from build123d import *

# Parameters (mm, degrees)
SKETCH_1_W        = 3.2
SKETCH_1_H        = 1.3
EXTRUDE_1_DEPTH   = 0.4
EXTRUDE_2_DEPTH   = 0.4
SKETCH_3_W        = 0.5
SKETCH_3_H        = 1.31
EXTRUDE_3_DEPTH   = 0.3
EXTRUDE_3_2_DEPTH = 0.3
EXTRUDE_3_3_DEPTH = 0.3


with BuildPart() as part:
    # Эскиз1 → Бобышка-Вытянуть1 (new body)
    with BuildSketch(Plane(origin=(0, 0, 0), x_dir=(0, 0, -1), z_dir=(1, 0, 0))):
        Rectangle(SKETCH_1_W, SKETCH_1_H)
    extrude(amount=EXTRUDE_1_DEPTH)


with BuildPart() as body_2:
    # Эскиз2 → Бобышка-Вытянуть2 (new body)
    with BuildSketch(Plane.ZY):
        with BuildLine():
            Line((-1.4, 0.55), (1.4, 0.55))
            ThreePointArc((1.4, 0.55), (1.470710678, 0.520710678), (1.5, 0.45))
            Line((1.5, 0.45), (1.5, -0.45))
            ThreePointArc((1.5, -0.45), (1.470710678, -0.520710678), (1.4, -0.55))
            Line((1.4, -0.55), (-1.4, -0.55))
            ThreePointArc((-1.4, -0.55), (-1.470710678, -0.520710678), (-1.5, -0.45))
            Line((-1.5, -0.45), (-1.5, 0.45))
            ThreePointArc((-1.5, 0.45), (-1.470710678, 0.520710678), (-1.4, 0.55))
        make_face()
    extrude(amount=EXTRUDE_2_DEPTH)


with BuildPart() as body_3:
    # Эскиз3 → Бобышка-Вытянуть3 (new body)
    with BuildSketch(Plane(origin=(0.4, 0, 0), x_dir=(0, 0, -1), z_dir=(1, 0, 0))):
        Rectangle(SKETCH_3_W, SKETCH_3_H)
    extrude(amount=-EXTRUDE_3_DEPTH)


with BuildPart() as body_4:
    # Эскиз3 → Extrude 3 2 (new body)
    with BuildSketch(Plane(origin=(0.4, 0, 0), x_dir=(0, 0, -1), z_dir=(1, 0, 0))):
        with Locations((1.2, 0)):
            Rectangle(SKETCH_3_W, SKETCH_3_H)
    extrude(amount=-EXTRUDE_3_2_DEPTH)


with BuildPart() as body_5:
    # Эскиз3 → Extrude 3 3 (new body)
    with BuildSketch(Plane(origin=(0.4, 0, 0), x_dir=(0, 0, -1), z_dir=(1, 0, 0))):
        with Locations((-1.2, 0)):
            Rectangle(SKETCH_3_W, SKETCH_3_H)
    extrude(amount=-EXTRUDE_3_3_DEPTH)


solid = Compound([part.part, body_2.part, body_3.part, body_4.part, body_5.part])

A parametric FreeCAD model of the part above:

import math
import FreeCAD as App
import Part
import Sketcher

V = App.Vector
Q = App.Units.Quantity


def add_polygon(sketch, points):
    """Adds a closed chain of lines whose ends are joined by coincident constraints."""
    first, n = sketch.GeometryCount, len(points)
    for a, b in zip(points, points[1:] + points[:1]):
        sketch.addGeometry(Part.LineSegment(App.Vector(*a, 0), App.Vector(*b, 0)), False)
    for i in range(n):
        sketch.addConstraint(Sketcher.Constraint("Coincident", first + i, 2, first + (i + 1) % n, 1))

doc = App.newDocument("Part")
body = doc.addObject("PartDesign::Body", "Body")

# Sketch on YZ plane
sketch1 = doc.addObject("Sketcher::SketchObject", "Sketch")
body.addObject(sketch1)
sketch1.AttachmentSupport = (doc.YZ_Plane, [""])
sketch1.MapMode = "FlatFace"
add_polygon(sketch1, [(0.7, 1.6), (-0.7, 1.6), (-0.7, -1.6), (0.7, -1.6)])  # lines 0-3
sketch1.addConstraint(Sketcher.Constraint("Horizontal", 0))
sketch1.addConstraint(Sketcher.Constraint("Vertical", 1))
sketch1.addConstraint(Sketcher.Constraint("Horizontal", 2))
sketch1.addConstraint(Sketcher.Constraint("Vertical", 3))
sketch1.addConstraint(Sketcher.Constraint("Symmetric", 0, 2, 2, 2, -1, 1))
sketch1.addConstraint(Sketcher.Constraint("DistanceX", 0, 2, 0, 1, Q("1.3 mm")))
sketch1.addConstraint(Sketcher.Constraint("DistanceY", 1, 2, 1, 1, Q("3.2 mm")))
pad1 = doc.addObject("PartDesign::Pad", "Pad")
body.addObject(pad1)
pad1.Profile = sketch1
pad1.Length = 0.4
body2 = doc.addObject("PartDesign::Body", "Body001")

# Sketch on YZ plane
sketch2 = doc.addObject("Sketcher::SketchObject", "Sketch001")
body2.addObject(sketch2)
sketch2.AttachmentSupport = (doc.getObject("YZ_Plane001"), [""])
sketch2.MapMode = "FlatFace"
sketch2.addGeometry(Part.LineSegment(V(0.55, 1.4, 0), V(0.55, -1.4, 0)), False)
sketch2.addGeometry(Part.ArcOfCircle(Part.Circle(V(0.45, -1.4, 0), V(0, 0, 1), 0.1), math.radians(-90), math.radians(0)), False)
sketch2.addGeometry(Part.LineSegment(V(0.45, -1.5, 0), V(-0.45, -1.5, 0)), False)
sketch2.addGeometry(Part.ArcOfCircle(Part.Circle(V(-0.45, -1.4, 0), V(0, 0, 1), 0.1), math.radians(180), math.radians(270)), False)
sketch2.addGeometry(Part.LineSegment(V(-0.55, -1.4, 0), V(-0.55, 1.4, 0)), False)
sketch2.addGeometry(Part.ArcOfCircle(Part.Circle(V(-0.45, 1.4, 0), V(0, 0, 1), 0.1), math.radians(90), math.radians(180)), False)
sketch2.addGeometry(Part.LineSegment(V(-0.45, 1.5, 0), V(0.45, 1.5, 0)), False)
sketch2.addGeometry(Part.ArcOfCircle(Part.Circle(V(0.45, 1.4, 0), V(0, 0, 1), 0.1), math.radians(0), math.radians(90)), False)
sketch2.addConstraint(Sketcher.Constraint("Tangent", 0, 2, 1, 2))
sketch2.addConstraint(Sketcher.Constraint("Tangent", 1, 1, 2, 1))
sketch2.addConstraint(Sketcher.Constraint("Tangent", 2, 2, 3, 2))
sketch2.addConstraint(Sketcher.Constraint("Tangent", 3, 1, 4, 1))
sketch2.addConstraint(Sketcher.Constraint("Tangent", 4, 2, 5, 2))
sketch2.addConstraint(Sketcher.Constraint("Tangent", 5, 1, 6, 1))
sketch2.addConstraint(Sketcher.Constraint("Tangent", 6, 2, 7, 2))
sketch2.addConstraint(Sketcher.Constraint("Tangent", 7, 1, 0, 1))
sketch2.addConstraint(Sketcher.Constraint("Vertical", 0))
sketch2.addConstraint(Sketcher.Constraint("Horizontal", 2))
sketch2.addConstraint(Sketcher.Constraint("Vertical", 4))
sketch2.addConstraint(Sketcher.Constraint("Horizontal", 6))
sketch2.addConstraint(Sketcher.Constraint("Equal", 1, 3))
sketch2.addConstraint(Sketcher.Constraint("Equal", 3, 5))
sketch2.addConstraint(Sketcher.Constraint("Equal", 5, 7))
sketch2.addConstraint(Sketcher.Constraint("Symmetric", 1, 3, 5, 3, -1, 1))
sketch2.addConstraint(Sketcher.Constraint("Radius", 1, Q("0.1 mm")))
sketch2.addConstraint(Sketcher.Constraint("DistanceX", 2, 2, 2, 1, Q("0.9 mm")))
sketch2.addConstraint(Sketcher.Constraint("DistanceY", 0, 2, 0, 1, Q("2.8 mm")))
pad2 = doc.addObject("PartDesign::Pad", "Pad001")
body2.addObject(pad2)
pad2.Profile = sketch2
pad2.Length = 0.4
pad2.Reversed = True
body3 = doc.addObject("PartDesign::Body", "Body002")

# Sketch on YZ plane
sketch3 = doc.addObject("Sketcher::SketchObject", "Sketch002")
body3.addObject(sketch3)
sketch3.AttachmentSupport = (doc.getObject("YZ_Plane002"), [""])
sketch3.MapMode = "FlatFace"
sketch3.AttachmentOffset = App.Placement(V(0, 0, 0.4), App.Rotation())
add_polygon(sketch3, [(0.7, 0.2), (-0.7, 0.2), (-0.7, -0.2), (0.7, -0.2)])  # lines 0-3
sketch3.addConstraint(Sketcher.Constraint("Horizontal", 0))
sketch3.addConstraint(Sketcher.Constraint("Vertical", 1))
sketch3.addConstraint(Sketcher.Constraint("Horizontal", 2))
sketch3.addConstraint(Sketcher.Constraint("Vertical", 3))
sketch3.addConstraint(Sketcher.Constraint("Symmetric", 0, 2, 2, 2, -1, 1))
sketch3.addConstraint(Sketcher.Constraint("DistanceY", 1, 2, 1, 1, Q("0.5 mm")))
sketch3.addConstraint(Sketcher.Constraint("DistanceX", 0, 2, 0, 1, Q("1.31 mm")))
pad3 = doc.addObject("PartDesign::Pad", "Pad002")
body3.addObject(pad3)
pad3.Profile = sketch3
pad3.Length = 0.3
pad3.Reversed = True
body4 = doc.addObject("PartDesign::Body", "Body003")

# Sketch on YZ plane
sketch4 = doc.addObject("Sketcher::SketchObject", "Sketch003")
body4.addObject(sketch4)
sketch4.AttachmentSupport = (doc.getObject("YZ_Plane003"), [""])
sketch4.MapMode = "FlatFace"
sketch4.AttachmentOffset = App.Placement(V(0, 0, 0.4), App.Rotation())
add_polygon(sketch4, [(0.7, -0.9), (-0.7, -0.9), (-0.7, -1.4), (0.7, -1.4)])  # lines 0-3
sketch4.addConstraint(Sketcher.Constraint("Horizontal", 0))
sketch4.addConstraint(Sketcher.Constraint("Vertical", 1))
sketch4.addConstraint(Sketcher.Constraint("Horizontal", 2))
sketch4.addConstraint(Sketcher.Constraint("Vertical", 3))
sketch4.addConstraint(Sketcher.Constraint("DistanceY", 1, 2, 1, 1, Q("0.5 mm")))
sketch4.addConstraint(Sketcher.Constraint("DistanceX", 0, 2, 0, 1, Q("1.31 mm")))
sketch4.addConstraint(Sketcher.Constraint("DistanceY", 0, 2, -1, 1, Q("0.95 mm")))
sketch4.addConstraint(Sketcher.Constraint("DistanceX", 0, 2, -1, 1, Q("0.655 mm")))
pad4 = doc.addObject("PartDesign::Pad", "Pad003")
body4.addObject(pad4)
pad4.Profile = sketch4
pad4.Length = 0.3
pad4.Reversed = True
body5 = doc.addObject("PartDesign::Body", "Body004")

# Sketch on YZ plane
sketch5 = doc.addObject("Sketcher::SketchObject", "Sketch004")
body5.addObject(sketch5)
sketch5.AttachmentSupport = (doc.getObject("YZ_Plane004"), [""])
sketch5.MapMode = "FlatFace"
sketch5.AttachmentOffset = App.Placement(V(0, 0, 0.4), App.Rotation())
add_polygon(sketch5, [(0.7, 1.4), (-0.7, 1.4), (-0.7, 0.9), (0.7, 0.9)])  # lines 0-3
sketch5.addConstraint(Sketcher.Constraint("Horizontal", 0))
sketch5.addConstraint(Sketcher.Constraint("Vertical", 1))
sketch5.addConstraint(Sketcher.Constraint("Horizontal", 2))
sketch5.addConstraint(Sketcher.Constraint("Vertical", 3))
sketch5.addConstraint(Sketcher.Constraint("DistanceY", 1, 2, 1, 1, Q("0.5 mm")))
sketch5.addConstraint(Sketcher.Constraint("DistanceX", 0, 2, 0, 1, Q("1.31 mm")))
sketch5.addConstraint(Sketcher.Constraint("DistanceY", -1, 1, 0, 2, Q("1.45 mm")))
sketch5.addConstraint(Sketcher.Constraint("DistanceX", 0, 2, -1, 1, Q("0.655 mm")))
pad5 = doc.addObject("PartDesign::Pad", "Pad004")
body5.addObject(pad5)
pad5.Profile = sketch5
pad5.Length = 0.3
pad5.Reversed = True

doc.recompute()
